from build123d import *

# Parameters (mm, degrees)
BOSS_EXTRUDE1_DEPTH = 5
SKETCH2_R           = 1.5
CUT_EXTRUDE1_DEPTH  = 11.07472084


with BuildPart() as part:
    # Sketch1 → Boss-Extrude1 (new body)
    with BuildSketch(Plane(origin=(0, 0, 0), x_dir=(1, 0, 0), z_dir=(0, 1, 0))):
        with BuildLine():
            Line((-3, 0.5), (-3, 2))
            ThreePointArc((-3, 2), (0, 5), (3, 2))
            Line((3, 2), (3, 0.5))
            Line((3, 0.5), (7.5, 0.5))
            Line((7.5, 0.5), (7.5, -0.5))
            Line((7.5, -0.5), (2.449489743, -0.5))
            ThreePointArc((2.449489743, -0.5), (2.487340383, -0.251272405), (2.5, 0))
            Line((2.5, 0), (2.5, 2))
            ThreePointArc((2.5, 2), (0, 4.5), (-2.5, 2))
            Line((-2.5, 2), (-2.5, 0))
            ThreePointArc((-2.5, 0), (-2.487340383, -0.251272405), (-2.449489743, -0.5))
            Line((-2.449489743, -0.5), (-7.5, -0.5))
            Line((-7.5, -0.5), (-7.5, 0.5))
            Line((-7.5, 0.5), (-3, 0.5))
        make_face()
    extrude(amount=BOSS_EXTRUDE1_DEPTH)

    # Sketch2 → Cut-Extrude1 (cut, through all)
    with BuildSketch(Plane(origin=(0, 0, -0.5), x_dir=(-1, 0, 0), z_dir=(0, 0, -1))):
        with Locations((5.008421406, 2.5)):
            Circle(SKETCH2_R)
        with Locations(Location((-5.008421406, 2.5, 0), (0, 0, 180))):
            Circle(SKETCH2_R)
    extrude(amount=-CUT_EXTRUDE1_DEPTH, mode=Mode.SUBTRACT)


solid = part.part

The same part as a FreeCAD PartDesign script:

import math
import FreeCAD as App
import Part
import Sketcher

V = App.Vector

doc = App.newDocument("Part")
params = doc.addObject("Spreadsheet::Sheet", "Params")
for row, (alias, value) in enumerate([
    ("sketch1_radius", "3 mm"),
    ("sketch1_radius2", "2.5 mm"),
    ("sketch1_height", "1 mm"),
    ("sketch1_height2", "2 mm"),
    ("sketch1_width", "4.5 mm"),
    ("pad1_length", "5 mm"),
    ("sketch2_diameter", "3 mm"),
], start=1):
    params.set(f"A{row}", alias)
    params.set(f"B{row}", "=" + value)
    params.setAlias(f"B{row}", alias)

body = doc.addObject("PartDesign::Body", "Body")

# Sketch on XZ plane
sketch1 = doc.addObject("Sketcher::SketchObject", "Sketch")
body.addObject(sketch1)
sketch1.AttachmentSupport = (doc.XZ_Plane, [""])
sketch1.MapMode = "FlatFace"
sketch1.addGeometry([
    Part.LineSegment(V(-3, -2, 0), V(-3, -0.5, 0)),  # 0
    Part.LineSegment(V(-3, -0.5, 0), V(-7.5, -0.5, 0)),  # 1
    Part.LineSegment(V(-7.5, -0.5, 0), V(-7.5, 0.5, 0)),  # 2
    Part.LineSegment(V(-7.5, 0.5, 0), V(-2.4, 0.5, 0)),  # 3
    Part.ArcOfCircle(Part.Circle(V(0, 0, 0), V(0, 0, 1), 2.5), math.radians(168.46), math.radians(180)),  # 4
    Part.LineSegment(V(-2.5, 0, 0), V(-2.5, -2, 0)),  # 5
    Part.ArcOfCircle(Part.Circle(V(0, -2, 0), V(0, 0, 1), 2.5), math.radians(180), math.radians(360)),  # 6
    Part.LineSegment(V(2.5, -2, 0), V(2.5, 0, 0)),  # 7
    Part.ArcOfCircle(Part.Circle(V(0, 0, 0), V(0, 0, 1), 2.5), math.radians(0), math.radians(11.54)),  # 8
    Part.LineSegment(V(2.4, 0.5, 0), V(7.5, 0.5, 0)),  # 9
    Part.LineSegment(V(7.5, 0.5, 0), V(7.5, -0.5, 0)),  # 10
    Part.LineSegment(V(7.5, -0.5, 0), V(3, -0.5, 0)),  # 11
    Part.LineSegment(V(3, -0.5, 0), V(3, -2, 0)),  # 12
    Part.ArcOfCircle(Part.Circle(V(0, -2, 0), V(0, 0, 1), 3), math.radians(180), math.radians(360)),  # 13
], False)
sketch1.addConstraint([
    Sketcher.Constraint("Coincident", 0, 2, 1, 1),
    Sketcher.Constraint("Coincident", 1, 2, 2, 1),
    Sketcher.Constraint("Coincident", 2, 2, 3, 1),
    Sketcher.Constraint("Coincident", 3, 2, 4, 1),
    Sketcher.Constraint("Tangent", 4, 2, 5, 1),
    Sketcher.Constraint("Tangent", 5, 2, 6, 1),
    Sketcher.Constraint("Tangent", 6, 2, 7, 1),
    Sketcher.Constraint("Tangent", 7, 2, 8, 1),
    Sketcher.Constraint("Coincident", 8, 2, 9, 1),
    Sketcher.Constraint("Coincident", 9, 2, 10, 1),
    Sketcher.Constraint("Coincident", 10, 2, 11, 1),
    Sketcher.Constraint("Coincident", 11, 2, 12, 1),
    Sketcher.Constraint("Tangent", 12, 2, 13, 2),
    Sketcher.Constraint("Tangent", 13, 1, 0, 1),
    Sketcher.Constraint("Vertical", 0),
    Sketcher.Constraint("Horizontal", 1),
    Sketcher.Constraint("Vertical", 2),
    Sketcher.Constraint("Horizontal", 3),
    Sketcher.Constraint("Vertical", 5),
    Sketcher.Constraint("Vertical", 7),
    Sketcher.Constraint("Horizontal", 9),
    Sketcher.Constraint("Vertical", 10),
    Sketcher.Constraint("Horizontal", 11),
    Sketcher.Constraint("Vertical", 12),
    Sketcher.Constraint("Coincident", 4, 3, -1, 1),
    Sketcher.Constraint("Coincident", 8, 3, -1, 1),
    Sketcher.Constraint("Coincident", 13, 3, 6, 3),
    Sketcher.Constraint("Equal", 4, 6),
    Sketcher.Constraint("Symmetric", 1, 2, 9, 2, -1, 1),
    Sketcher.Constraint("Horizontal", 3, 2, 8, 2),
    Sketcher.Constraint("Horizontal", 1, 2, 10, 2),
    Sketcher.Constraint("Radius", 13, 3.0),
    Sketcher.Constraint("Radius", 4, 2.5),
    Sketcher.Constraint("DistanceY", 2, 1, 2, 2, 1.0),
    Sketcher.Constraint("DistanceY", 5, 2, 5, 1, 2.0),
    Sketcher.Constraint("DistanceX", 1, 2, 1, 1, 4.5),
])
sketch1.setExpression("Constraints[31]", "Params.sketch1_radius")
sketch1.setExpression("Constraints[32]", "Params.sketch1_radius2")
sketch1.setExpression("Constraints[33]", "Params.sketch1_height")
sketch1.setExpression("Constraints[34]", "Params.sketch1_height2")
sketch1.setExpression("Constraints[35]", "Params.sketch1_width")
pad1 = doc.addObject("PartDesign::Pad", "Pad")
body.addObject(pad1)
pad1.Profile = sketch1
pad1.setExpression("Length", "Params.pad1_length")
pad1.Reversed = True

# Sketch on XY plane
sketch2 = doc.addObject("Sketcher::SketchObject", "Sketch001")
body.addObject(sketch2)
sketch2.AttachmentSupport = (doc.XY_Plane, [""])
sketch2.MapMode = "FlatFace"
sketch2.AttachmentOffset = App.Placement(V(0, 0, -0.5), App.Rotation())
sketch2.addGeometry([
    Part.Circle(V(-5, 2.5, 0), V(0, 0, 1), 1.5),
    Part.Circle(V(5, 2.5, 0), V(0, 0, 1), 1.5),
], False)
sketch2.addConstraint([
    Sketcher.Constraint("Equal", 0, 1),
    Sketcher.Constraint("Symmetric", 0, 3, 1, 3, -2),
    Sketcher.Constraint("Diameter", 0, 3.0),
    Sketcher.Constraint("DistanceY", -1, 1, 0, 3, 2.5),
    Sketcher.Constraint("DistanceX", 0, 3, -1, 1, 5.008421),
])
sketch2.setExpression("Constraints[2]", "Params.sketch2_diameter")
pocket1 = doc.addObject("PartDesign::Pocket", "Pocket")
body.addObject(pocket1)
pocket1.Profile = sketch2
pocket1.Type = "ThroughAll"
pocket1.Reversed = True

doc.recompute()
